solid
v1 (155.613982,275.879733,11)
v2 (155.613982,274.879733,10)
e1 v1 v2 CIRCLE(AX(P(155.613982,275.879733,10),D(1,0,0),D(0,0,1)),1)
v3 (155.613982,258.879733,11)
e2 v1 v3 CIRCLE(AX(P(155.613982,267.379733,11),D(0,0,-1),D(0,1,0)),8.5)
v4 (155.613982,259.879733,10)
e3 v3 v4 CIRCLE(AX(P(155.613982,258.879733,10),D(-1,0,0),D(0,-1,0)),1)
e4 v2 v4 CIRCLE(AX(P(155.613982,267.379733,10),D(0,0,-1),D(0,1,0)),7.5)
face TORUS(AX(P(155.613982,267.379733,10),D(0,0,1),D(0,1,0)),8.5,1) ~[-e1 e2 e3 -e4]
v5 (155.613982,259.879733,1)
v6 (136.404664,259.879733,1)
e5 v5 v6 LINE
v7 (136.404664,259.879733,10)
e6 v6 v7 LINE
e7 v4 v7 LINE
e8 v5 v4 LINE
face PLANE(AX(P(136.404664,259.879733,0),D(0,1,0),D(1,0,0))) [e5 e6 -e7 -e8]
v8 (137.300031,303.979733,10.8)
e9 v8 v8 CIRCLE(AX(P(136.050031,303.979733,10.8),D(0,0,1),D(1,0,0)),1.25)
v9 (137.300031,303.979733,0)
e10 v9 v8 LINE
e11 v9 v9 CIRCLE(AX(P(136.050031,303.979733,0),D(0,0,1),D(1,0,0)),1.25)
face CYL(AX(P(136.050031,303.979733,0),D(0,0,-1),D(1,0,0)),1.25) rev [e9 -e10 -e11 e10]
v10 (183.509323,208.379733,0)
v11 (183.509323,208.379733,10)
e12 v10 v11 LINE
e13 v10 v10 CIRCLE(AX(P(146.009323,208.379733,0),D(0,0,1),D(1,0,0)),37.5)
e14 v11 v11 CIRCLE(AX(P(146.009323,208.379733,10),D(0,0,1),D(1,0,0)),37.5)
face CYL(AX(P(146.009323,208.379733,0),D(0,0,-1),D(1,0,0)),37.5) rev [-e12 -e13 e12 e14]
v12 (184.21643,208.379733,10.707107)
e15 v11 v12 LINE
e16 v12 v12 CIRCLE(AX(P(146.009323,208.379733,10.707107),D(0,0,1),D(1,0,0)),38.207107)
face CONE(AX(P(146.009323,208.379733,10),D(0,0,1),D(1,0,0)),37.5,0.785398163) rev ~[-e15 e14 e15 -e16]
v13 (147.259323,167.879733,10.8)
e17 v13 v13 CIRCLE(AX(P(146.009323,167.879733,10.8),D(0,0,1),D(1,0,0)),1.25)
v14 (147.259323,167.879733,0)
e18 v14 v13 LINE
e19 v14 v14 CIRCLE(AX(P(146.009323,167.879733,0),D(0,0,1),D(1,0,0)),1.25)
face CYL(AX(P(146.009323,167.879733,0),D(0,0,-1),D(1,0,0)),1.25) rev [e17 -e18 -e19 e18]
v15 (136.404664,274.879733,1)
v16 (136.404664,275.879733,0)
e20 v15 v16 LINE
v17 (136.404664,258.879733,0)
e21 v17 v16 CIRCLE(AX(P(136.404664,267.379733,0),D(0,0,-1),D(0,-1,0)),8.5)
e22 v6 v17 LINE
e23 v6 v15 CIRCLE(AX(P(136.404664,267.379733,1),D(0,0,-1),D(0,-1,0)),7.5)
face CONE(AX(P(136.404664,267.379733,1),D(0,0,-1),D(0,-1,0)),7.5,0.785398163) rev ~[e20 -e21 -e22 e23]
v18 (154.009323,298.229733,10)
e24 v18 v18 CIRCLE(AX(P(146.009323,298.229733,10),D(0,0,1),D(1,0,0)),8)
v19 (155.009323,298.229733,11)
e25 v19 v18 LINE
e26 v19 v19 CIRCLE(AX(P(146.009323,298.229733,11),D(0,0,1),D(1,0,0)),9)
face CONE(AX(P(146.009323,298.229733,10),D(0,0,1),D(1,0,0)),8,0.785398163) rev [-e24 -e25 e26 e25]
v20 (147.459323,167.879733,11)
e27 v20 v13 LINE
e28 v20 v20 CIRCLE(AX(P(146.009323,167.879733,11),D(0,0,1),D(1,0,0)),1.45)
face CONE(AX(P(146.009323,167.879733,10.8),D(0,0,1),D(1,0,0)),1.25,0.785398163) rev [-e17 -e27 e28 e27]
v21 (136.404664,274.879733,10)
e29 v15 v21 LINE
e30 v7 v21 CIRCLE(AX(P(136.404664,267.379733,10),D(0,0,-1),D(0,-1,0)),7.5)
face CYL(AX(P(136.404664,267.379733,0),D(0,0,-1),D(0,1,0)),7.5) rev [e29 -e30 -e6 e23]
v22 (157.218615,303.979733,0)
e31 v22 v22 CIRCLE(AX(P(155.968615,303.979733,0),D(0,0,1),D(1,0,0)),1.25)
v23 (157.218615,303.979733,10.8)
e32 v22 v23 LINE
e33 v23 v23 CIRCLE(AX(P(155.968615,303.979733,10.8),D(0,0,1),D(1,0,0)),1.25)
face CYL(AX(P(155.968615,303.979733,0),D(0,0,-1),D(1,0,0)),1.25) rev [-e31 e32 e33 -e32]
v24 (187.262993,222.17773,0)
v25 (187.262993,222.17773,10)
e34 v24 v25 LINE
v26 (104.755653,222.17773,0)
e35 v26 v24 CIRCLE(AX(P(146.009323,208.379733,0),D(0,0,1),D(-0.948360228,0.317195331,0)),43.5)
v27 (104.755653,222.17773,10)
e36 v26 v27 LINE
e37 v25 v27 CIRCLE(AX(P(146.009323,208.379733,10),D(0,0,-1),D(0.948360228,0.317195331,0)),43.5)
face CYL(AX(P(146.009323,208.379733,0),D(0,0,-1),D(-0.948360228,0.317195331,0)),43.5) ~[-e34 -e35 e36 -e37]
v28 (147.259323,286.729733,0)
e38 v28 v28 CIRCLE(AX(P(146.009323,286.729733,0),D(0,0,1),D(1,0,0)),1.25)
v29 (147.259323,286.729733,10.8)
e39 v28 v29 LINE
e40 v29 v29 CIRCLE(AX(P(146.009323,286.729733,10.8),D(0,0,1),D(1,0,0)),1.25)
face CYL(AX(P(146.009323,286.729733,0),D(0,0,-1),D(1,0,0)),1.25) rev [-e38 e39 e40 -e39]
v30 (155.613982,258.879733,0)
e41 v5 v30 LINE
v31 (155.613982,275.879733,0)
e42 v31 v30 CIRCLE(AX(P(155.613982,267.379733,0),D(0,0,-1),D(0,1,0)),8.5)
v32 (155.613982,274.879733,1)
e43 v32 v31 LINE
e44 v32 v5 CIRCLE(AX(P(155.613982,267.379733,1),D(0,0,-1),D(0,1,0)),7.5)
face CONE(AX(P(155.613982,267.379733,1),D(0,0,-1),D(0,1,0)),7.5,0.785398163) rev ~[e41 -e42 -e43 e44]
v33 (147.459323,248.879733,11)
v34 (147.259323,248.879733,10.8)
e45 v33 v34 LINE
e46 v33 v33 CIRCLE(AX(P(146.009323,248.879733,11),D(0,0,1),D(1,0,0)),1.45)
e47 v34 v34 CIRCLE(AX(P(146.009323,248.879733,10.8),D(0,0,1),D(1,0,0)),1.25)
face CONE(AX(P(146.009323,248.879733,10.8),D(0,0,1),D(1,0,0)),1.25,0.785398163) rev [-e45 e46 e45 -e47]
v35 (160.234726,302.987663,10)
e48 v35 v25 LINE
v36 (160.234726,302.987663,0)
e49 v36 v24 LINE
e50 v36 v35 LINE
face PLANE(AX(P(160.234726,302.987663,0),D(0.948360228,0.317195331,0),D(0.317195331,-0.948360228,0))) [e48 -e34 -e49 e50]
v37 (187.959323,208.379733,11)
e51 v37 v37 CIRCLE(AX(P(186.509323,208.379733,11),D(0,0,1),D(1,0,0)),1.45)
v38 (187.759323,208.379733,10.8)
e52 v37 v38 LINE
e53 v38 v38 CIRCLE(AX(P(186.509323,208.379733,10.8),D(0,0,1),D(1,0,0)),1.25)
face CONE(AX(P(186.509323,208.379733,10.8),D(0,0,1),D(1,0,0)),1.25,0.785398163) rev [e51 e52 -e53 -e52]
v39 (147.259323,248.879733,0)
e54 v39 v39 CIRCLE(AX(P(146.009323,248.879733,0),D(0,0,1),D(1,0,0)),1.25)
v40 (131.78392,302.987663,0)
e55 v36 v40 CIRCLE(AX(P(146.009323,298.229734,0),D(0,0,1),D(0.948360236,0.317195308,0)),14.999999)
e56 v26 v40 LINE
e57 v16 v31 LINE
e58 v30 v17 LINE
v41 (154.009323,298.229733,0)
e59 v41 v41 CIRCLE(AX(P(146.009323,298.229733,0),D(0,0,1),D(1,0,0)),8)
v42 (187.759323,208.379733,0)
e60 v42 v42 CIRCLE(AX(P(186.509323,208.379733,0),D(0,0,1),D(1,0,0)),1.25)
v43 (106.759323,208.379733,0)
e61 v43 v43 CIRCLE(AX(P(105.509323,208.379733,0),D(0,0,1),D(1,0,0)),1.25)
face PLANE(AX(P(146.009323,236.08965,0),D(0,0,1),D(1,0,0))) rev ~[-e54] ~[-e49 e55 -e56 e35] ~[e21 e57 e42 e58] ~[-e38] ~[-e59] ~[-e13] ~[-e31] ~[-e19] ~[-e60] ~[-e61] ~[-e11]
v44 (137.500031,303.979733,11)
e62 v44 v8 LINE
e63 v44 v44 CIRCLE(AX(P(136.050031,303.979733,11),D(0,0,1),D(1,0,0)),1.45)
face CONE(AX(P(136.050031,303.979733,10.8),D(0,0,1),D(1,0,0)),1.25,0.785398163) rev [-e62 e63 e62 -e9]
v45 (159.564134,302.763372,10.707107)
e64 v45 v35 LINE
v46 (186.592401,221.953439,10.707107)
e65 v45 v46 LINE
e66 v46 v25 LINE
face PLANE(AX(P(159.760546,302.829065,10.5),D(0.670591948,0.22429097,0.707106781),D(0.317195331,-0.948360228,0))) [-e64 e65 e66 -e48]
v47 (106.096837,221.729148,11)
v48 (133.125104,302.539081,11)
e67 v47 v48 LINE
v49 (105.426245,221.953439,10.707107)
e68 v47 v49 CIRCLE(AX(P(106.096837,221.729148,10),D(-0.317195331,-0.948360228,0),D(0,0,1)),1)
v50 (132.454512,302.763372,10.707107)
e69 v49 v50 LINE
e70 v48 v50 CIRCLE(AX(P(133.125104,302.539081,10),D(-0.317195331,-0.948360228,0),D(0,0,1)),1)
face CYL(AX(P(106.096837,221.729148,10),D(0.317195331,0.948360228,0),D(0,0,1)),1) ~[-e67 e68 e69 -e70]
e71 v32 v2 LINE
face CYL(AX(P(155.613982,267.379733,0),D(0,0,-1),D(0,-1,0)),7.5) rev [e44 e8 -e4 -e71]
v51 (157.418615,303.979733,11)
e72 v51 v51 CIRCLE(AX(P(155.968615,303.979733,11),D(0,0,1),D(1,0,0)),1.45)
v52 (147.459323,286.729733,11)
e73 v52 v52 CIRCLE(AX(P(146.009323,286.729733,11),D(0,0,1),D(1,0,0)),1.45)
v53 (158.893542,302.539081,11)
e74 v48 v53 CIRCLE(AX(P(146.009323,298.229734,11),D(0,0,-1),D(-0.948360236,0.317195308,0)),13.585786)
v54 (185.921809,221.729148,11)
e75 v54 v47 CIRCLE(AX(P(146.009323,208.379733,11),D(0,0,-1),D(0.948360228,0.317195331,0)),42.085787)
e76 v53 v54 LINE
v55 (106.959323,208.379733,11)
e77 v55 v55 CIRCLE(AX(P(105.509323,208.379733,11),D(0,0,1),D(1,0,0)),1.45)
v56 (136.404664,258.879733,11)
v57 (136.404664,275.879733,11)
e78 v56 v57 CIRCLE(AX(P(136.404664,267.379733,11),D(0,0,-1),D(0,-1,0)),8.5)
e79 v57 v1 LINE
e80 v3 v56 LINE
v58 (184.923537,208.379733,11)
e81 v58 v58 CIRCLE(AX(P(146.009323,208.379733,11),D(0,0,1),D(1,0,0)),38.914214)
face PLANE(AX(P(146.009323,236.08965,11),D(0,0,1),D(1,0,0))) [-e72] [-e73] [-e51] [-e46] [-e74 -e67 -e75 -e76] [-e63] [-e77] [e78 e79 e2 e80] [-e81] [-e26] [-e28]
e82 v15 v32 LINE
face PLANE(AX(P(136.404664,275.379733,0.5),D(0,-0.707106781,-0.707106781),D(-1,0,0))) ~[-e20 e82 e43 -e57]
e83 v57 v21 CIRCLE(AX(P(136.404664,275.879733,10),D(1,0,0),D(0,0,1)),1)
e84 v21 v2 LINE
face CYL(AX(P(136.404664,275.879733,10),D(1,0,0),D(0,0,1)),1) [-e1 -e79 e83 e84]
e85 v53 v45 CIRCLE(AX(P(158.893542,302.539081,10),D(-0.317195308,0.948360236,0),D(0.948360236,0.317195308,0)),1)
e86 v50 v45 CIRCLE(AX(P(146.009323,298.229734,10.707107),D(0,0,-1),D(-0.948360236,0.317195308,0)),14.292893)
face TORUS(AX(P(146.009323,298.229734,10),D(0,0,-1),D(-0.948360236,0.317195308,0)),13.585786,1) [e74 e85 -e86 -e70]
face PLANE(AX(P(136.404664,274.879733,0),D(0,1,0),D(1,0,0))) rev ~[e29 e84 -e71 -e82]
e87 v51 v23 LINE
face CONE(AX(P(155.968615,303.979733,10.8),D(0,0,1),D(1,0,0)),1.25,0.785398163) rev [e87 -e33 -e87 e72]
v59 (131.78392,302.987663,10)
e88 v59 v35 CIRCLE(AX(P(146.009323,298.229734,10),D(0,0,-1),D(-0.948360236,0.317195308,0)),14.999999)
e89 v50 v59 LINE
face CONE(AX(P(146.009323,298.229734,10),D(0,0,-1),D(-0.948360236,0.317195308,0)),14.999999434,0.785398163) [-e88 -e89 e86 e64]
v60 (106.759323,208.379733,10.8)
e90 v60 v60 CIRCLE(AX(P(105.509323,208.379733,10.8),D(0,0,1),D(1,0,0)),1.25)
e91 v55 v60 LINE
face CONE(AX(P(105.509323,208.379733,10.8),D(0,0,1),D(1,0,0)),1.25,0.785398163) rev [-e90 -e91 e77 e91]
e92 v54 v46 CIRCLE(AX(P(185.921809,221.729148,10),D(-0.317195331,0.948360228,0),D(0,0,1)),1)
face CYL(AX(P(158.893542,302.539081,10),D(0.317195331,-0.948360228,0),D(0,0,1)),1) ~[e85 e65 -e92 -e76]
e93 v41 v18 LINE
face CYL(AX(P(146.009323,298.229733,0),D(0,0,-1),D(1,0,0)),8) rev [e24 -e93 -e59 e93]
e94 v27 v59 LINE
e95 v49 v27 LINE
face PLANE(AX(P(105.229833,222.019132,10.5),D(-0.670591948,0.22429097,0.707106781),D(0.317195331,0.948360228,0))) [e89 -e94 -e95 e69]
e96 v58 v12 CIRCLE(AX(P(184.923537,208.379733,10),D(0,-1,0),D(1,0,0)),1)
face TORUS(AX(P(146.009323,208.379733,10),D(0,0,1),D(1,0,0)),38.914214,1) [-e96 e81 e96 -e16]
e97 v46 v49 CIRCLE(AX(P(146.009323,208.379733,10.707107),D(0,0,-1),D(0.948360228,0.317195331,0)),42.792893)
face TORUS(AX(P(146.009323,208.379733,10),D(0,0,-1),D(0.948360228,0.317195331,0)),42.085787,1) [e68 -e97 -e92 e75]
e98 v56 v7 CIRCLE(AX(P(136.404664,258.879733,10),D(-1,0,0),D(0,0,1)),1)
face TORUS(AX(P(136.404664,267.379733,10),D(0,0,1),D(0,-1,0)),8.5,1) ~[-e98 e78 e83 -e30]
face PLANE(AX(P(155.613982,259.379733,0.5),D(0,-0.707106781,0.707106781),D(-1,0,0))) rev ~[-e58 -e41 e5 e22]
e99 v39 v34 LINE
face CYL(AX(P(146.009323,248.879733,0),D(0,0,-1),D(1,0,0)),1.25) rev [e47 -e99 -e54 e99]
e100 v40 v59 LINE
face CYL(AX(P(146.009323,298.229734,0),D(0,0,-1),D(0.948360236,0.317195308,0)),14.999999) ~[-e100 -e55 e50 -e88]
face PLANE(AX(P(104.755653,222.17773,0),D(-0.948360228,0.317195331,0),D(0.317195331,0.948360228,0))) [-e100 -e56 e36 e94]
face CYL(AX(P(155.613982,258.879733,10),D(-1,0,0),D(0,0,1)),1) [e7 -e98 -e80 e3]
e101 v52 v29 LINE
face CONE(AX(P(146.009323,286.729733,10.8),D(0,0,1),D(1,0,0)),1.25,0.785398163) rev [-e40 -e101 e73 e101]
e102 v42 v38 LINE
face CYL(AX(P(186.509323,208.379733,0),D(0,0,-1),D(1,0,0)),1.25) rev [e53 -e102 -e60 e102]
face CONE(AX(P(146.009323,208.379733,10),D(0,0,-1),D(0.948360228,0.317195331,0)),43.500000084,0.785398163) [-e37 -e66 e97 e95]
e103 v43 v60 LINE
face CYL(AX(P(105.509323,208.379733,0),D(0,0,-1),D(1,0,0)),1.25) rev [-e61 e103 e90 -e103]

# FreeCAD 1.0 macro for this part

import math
import FreeCAD as App
import Part
import Sketcher

V = App.Vector
Q = App.Units.Quantity


def edges_at(feature, points):
    """Names of the edges that pass closest to the given points."""
    edges = feature.Shape.Edges
    near = lambda p: min(range(len(edges)), key=lambda i: edges[i].distToShape(Part.Vertex(*p))[0])
    return sorted({f"Edge{near(p) + 1}" for p in points})

doc = App.newDocument("Part")
body = doc.addObject("PartDesign::Body", "Body")

sketch1 = body.newObject("Sketcher::SketchObject", "Sketch")
sketch1.AttachmentSupport = (doc.getObject("XY_Plane"), [""])
sketch1.MapMode = "FlatFace"
sketch1.addGeometry(Part.ArcOfCircle(Part.Circle(V(146, 298.2, 0), V(0, 0, 1), 15), math.radians(18), math.radians(162)), False)
sketch1.addGeometry(Part.LineSegment(V(131.8, 303, 0), V(104.8, 222.2, 0)), False)
sketch1.addGeometry(Part.ArcOfCircle(Part.Circle(V(146, 208.4, 0), V(0, 0, 1), 43.5), math.radians(162), math.radians(378)), False)
sketch1.addGeometry(Part.LineSegment(V(187.3, 222.2, 0), V(160.2, 303, 0)), False)
sketch1.addGeometry(Part.Circle(V(105.5, 208.4, 0), V(0, 0, 1), 1.2), False)
sketch1.addGeometry(Part.Circle(V(146, 167.9, 0), V(0, 0, 1), 1.2), False)
sketch1.addGeometry(Part.Circle(V(146, 208.4, 0), V(0, 0, 1), 37.5), False)
sketch1.addGeometry(Part.Circle(V(186.5, 208.4, 0), V(0, 0, 1), 1.2), False)
sketch1.addGeometry(Part.Circle(V(136.1, 304, 0), V(0, 0, 1), 1.2), False)
sketch1.addGeometry(Part.Circle(V(146, 248.9, 0), V(0, 0, 1), 1.2), False)
sketch1.addGeometry(Part.ArcOfCircle(Part.Circle(V(136.4, 267.4, 0), V(0, 0, 1), 7.5), math.radians(90), math.radians(270)), False)
sketch1.addGeometry(Part.LineSegment(V(136.4, 274.9, 0), V(155.6, 274.9, 0)), False)
sketch1.addGeometry(Part.ArcOfCircle(Part.Circle(V(155.6, 267.4, 0), V(0, 0, 1), 7.5), math.radians(-90), math.radians(90)), False)
sketch1.addGeometry(Part.LineSegment(V(155.6, 259.9, 0), V(136.4, 259.9, 0)), False)
sketch1.addGeometry(Part.Circle(V(146, 286.7, 0), V(0, 0, 1), 1.2), False)
sketch1.addGeometry(Part.Circle(V(146, 298.2, 0), V(0, 0, 1), 8), False)
sketch1.addGeometry(Part.Circle(V(156, 304, 0), V(0, 0, 1), 1.2), False)
sketch1.addConstraint(Sketcher.Constraint("Tangent", 0, 2, 1, 1))
sketch1.addConstraint(Sketcher.Constraint("Tangent", 1, 2, 2, 1))
sketch1.addConstraint(Sketcher.Constraint("Tangent", 2, 2, 3, 1))
sketch1.addConstraint(Sketcher.Constraint("Tangent", 3, 2, 0, 1))
sketch1.addConstraint(Sketcher.Constraint("Tangent", 10, 1, 11, 1))
sketch1.addConstraint(Sketcher.Constraint("Tangent", 11, 2, 12, 2))
sketch1.addConstraint(Sketcher.Constraint("Tangent", 12, 1, 13, 1))
sketch1.addConstraint(Sketcher.Constraint("Tangent", 13, 2, 10, 2))
sketch1.addConstraint(Sketcher.Constraint("Horizontal", 11))
sketch1.addConstraint(Sketcher.Constraint("Horizontal", 13))
sketch1.addConstraint(Sketcher.Constraint("Coincident", 6, 3, 2, 3))
sketch1.addConstraint(Sketcher.Constraint("Coincident", 15, 3, 0, 3))
sketch1.addConstraint(Sketcher.Constraint("Equal", 4, 5))
sketch1.addConstraint(Sketcher.Constraint("Equal", 5, 7))
sketch1.addConstraint(Sketcher.Constraint("Equal", 7, 8))
sketch1.addConstraint(Sketcher.Constraint("Equal", 8, 9))
sketch1.addConstraint(Sketcher.Constraint("Equal", 9, 14))
sketch1.addConstraint(Sketcher.Constraint("Equal", 14, 16))
sketch1.addConstraint(Sketcher.Constraint("Horizontal", 2, 3, 4, 3))
sketch1.addConstraint(Sketcher.Constraint("Horizontal", 6, 3, 7, 3))
sketch1.addConstraint(Sketcher.Constraint("Horizontal", 8, 3, 16, 3))
sketch1.addConstraint(Sketcher.Constraint("Horizontal", 1, 2, 2, 2))
sketch1.addConstraint(Sketcher.Constraint("Vertical", 2, 3, 5, 3))
sketch1.addConstraint(Sketcher.Constraint("Vertical", 6, 3, 9, 3))
sketch1.addConstraint(Sketcher.Constraint("Vertical", 9, 3, 14, 3))
sketch1.addConstraint(Sketcher.Constraint("Diameter", 6, Q("75 mm")))
sketch1.addConstraint(Sketcher.Constraint("Diameter", 15, Q("16 mm")))
sketch1.addConstraint(Sketcher.Constraint("Radius", 0, Q("14.999999 mm")))
sketch1.addConstraint(Sketcher.Constraint("Diameter", 4, Q("2.5 mm")))
sketch1.addConstraint(Sketcher.Constraint("Radius", 2, Q("43.5 mm")))
sketch1.addConstraint(Sketcher.Constraint("Radius", 10, Q("7.5 mm")))
sketch1.addConstraint(Sketcher.Constraint("DistanceX", 4, 3, 7, 3, Q("81 mm")))
sketch1.addConstraint(Sketcher.Constraint("DistanceY", 2, 3, 10, 3, Q("59 mm")))
sketch1.addConstraint(Sketcher.Constraint("DistanceY", 9, 3, 12, 1, Q("11 mm")))
sketch1.addConstraint(Sketcher.Constraint("DistanceX", 4, 3, 2, 3, Q("40.5 mm")))
sketch1.addConstraint(Sketcher.Constraint("DistanceY", 5, 3, 2, 3, Q("40.5 mm")))
sketch1.addConstraint(Sketcher.Constraint("DistanceY", 2, 3, 8, 3, Q("95.6 mm")))
sketch1.addConstraint(Sketcher.Constraint("DistanceY", 14, 3, 0, 3, Q("11.500001 mm")))
sketch1.addConstraint(Sketcher.Constraint("DistanceY", 2, 3, 0, 3, Q("89.85 mm")))
sketch1.addConstraint(Sketcher.Constraint("DistanceX", 11, 1, 11, 2, Q("19.209318 mm")))
sketch1.addConstraint(Sketcher.Constraint("DistanceX", -1, 1, 8, 3, Q("136.050031 mm")))
sketch1.addConstraint(Sketcher.Constraint("DistanceX", -1, 1, 12, 3, Q("155.613982 mm")))
sketch1.addConstraint(Sketcher.Constraint("DistanceX", -1, 1, 0, 2, Q("131.78392 mm")))
sketch1.addConstraint(Sketcher.Constraint("DistanceY", -1, 1, 1, 2, Q("222.17773 mm")))
sketch1.addConstraint(Sketcher.Constraint("DistanceX", 16, 3, 3, 2, Q("4.266111 mm")))
pad1 = body.newObject("PartDesign::Pad", "Pad")
pad1.Profile = sketch1
pad1.Length = 11
doc.recompute()

chamfer = body.newObject("PartDesign::Chamfer", "Chamfer")
chamfer.Base = (pad1, edges_at(pad1, [(108.509, 208.38, 11), (146.009, 274.88, 0)]))
chamfer.Size = 1
doc.recompute()

chamfer2 = body.newObject("PartDesign::Chamfer", "Chamfer001")
chamfer2.Base = (chamfer, edges_at(chamfer, [(173.749, 262.583, 11)]))
chamfer2.Size = 1
doc.recompute()

fillet = body.newObject("PartDesign::Fillet", "Fillet")
fillet.Base = (chamfer2, edges_at(chamfer2, [
    (146.009, 274.88, 11),
    (107.509, 208.38, 11),
    (119.218, 262.266, 11),
    (146.009, 165.88, 11),
]))
fillet.Radius = 1
doc.recompute()

chamfer3 = body.newObject("PartDesign::Chamfer", "Chamfer002")
chamfer3.Base = (fillet, edges_at(fillet, [
    (144.759, 286.73, 11),
    (134.8, 303.98, 11),
    (154.719, 303.98, 11),
    (185.259, 208.38, 11),
    (144.759, 167.88, 11),
    (104.259, 208.38, 11),
    (144.759, 248.88, 11),
]))
chamfer3.Size = 0.2
doc.recompute()

chamfer4 = body.newObject("PartDesign::Chamfer", "Chamfer003")
chamfer4.Base = (chamfer3, edges_at(chamfer3, [(138.009, 298.23, 11)]))
chamfer4.Size = 1

doc.recompute()
